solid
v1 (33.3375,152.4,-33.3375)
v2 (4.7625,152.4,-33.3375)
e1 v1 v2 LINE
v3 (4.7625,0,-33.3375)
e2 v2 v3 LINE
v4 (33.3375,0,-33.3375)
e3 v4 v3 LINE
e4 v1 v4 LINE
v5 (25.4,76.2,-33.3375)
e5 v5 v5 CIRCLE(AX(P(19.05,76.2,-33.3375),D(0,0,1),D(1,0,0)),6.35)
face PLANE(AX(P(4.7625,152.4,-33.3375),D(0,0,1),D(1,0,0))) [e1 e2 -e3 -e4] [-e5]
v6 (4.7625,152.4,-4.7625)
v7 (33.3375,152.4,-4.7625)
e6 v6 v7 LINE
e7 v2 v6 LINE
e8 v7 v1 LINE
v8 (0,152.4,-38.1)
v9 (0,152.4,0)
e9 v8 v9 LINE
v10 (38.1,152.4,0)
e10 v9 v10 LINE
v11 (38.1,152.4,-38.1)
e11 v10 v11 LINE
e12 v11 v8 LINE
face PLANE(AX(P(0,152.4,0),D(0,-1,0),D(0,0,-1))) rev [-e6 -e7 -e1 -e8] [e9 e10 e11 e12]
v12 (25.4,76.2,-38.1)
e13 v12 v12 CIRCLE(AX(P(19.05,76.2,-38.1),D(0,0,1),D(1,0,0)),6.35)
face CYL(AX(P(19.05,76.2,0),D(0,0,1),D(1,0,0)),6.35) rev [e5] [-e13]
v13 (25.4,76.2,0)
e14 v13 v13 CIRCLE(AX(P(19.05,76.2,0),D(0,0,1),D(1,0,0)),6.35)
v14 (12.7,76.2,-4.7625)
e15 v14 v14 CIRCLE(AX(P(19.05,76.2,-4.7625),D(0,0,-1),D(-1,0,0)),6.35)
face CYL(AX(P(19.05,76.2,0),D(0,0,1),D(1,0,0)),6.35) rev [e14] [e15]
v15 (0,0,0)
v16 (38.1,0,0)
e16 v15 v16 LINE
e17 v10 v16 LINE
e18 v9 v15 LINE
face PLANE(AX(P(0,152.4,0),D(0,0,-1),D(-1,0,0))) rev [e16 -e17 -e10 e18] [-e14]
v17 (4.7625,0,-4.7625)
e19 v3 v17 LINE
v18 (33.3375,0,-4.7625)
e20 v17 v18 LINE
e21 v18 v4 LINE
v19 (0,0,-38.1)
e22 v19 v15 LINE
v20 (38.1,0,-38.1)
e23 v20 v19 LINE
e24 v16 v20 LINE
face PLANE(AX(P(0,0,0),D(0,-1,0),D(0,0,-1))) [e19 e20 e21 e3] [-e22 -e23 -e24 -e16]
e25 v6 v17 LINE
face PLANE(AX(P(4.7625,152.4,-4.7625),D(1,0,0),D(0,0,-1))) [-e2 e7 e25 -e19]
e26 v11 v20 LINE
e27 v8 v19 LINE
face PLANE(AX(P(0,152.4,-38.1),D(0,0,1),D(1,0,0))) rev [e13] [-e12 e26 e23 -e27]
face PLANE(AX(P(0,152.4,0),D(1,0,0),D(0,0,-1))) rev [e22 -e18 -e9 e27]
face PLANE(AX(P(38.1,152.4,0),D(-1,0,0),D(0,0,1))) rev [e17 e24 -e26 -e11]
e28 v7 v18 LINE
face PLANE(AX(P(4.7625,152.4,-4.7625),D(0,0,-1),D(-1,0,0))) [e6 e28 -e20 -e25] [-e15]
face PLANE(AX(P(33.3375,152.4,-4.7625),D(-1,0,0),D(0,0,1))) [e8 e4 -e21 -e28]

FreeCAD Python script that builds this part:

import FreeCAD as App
import Part
import Sketcher

V = App.Vector
Q = App.Units.Quantity

doc = App.newDocument("Part")
params = doc.addObject("Spreadsheet::Sheet", "Params")
for row, (alias, value) in enumerate([
    ("sketch1_width", "1.5 in"),
    ("sketch1_width2", "1.125 in"),
    ("pad1_length", "6 in"),
    ("sketch2_diameter", "0.5 in"),
    ("hole_diameter", "0.5 in"),
], start=1):
    params.set(f"A{row}", alias)
    params.set(f"B{row}", "=" + value)
    params.setAlias(f"B{row}", alias)

body = doc.addObject("PartDesign::Body", "Body")

sketch1 = body.newObject("Sketcher::SketchObject", "Sketch")
sketch1.AttachmentSupport = (doc.getObject("XZ_Plane"), [""])
sketch1.MapMode = "FlatFace"
sketch1.addGeometry(Part.LineSegment(V(0, -38, 0), V(0, 0, 0)), False)
sketch1.addGeometry(Part.LineSegment(V(0, 0, 0), V(38, 0, 0)), False)
sketch1.addGeometry(Part.LineSegment(V(38, 0, 0), V(38, -38, 0)), False)
sketch1.addGeometry(Part.LineSegment(V(38, -38, 0), V(0, -38, 0)), False)
sketch1.addGeometry(Part.LineSegment(V(33, -5, 0), V(5, -5, 0)), False)
sketch1.addGeometry(Part.LineSegment(V(5, -5, 0), V(5, -33, 0)), False)
sketch1.addGeometry(Part.LineSegment(V(5, -33, 0), V(33, -33, 0)), False)
sketch1.addGeometry(Part.LineSegment(V(33, -33, 0), V(33, -5, 0)), False)
sketch1.addConstraint(Sketcher.Constraint("Coincident", 0, 2, 1, 1))
sketch1.addConstraint(Sketcher.Constraint("Coincident", 1, 2, 2, 1))
sketch1.addConstraint(Sketcher.Constraint("Coincident", 2, 2, 3, 1))
sketch1.addConstraint(Sketcher.Constraint("Coincident", 3, 2, 0, 1))
sketch1.addConstraint(Sketcher.Constraint("Coincident", 4, 2, 5, 1))
sketch1.addConstraint(Sketcher.Constraint("Coincident", 5, 2, 6, 1))
sketch1.addConstraint(Sketcher.Constraint("Coincident", 6, 2, 7, 1))
sketch1.addConstraint(Sketcher.Constraint("Coincident", 7, 2, 4, 1))
sketch1.addConstraint(Sketcher.Constraint("Vertical", 0))
sketch1.addConstraint(Sketcher.Constraint("Horizontal", 1))
sketch1.addConstraint(Sketcher.Constraint("Vertical", 2))
sketch1.addConstraint(Sketcher.Constraint("Horizontal", 3))
sketch1.addConstraint(Sketcher.Constraint("Horizontal", 4))
sketch1.addConstraint(Sketcher.Constraint("Vertical", 5))
sketch1.addConstraint(Sketcher.Constraint("Horizontal", 6))
sketch1.addConstraint(Sketcher.Constraint("Vertical", 7))
sketch1.addConstraint(Sketcher.Constraint("Coincident", 0, 2, -1, 1))
sketch1.addConstraint(Sketcher.Constraint("Equal", 3, 0))
sketch1.addConstraint(Sketcher.Constraint("Equal", 6, 5))
sketch1.addConstraint(Sketcher.Constraint("DistanceX", 1, 1, 1, 2, Q("1.5 in")))
sketch1.addConstraint(Sketcher.Constraint("DistanceX", 4, 2, 4, 1, Q("1.125 in")))
sketch1.addConstraint(Sketcher.Constraint("DistanceX", -1, 1, 4, 2, Q("0.1875 in")))
sketch1.addConstraint(Sketcher.Constraint("DistanceY", 4, 2, -1, 1, Q("0.1875 in")))
sketch1.setExpression("Constraints[19]", "Params.sketch1_width")
sketch1.setExpression("Constraints[20]", "Params.sketch1_width2")
pad1 = body.newObject("PartDesign::Pad", "Pad")
pad1.Profile = sketch1
pad1.setExpression("Length", "Params.pad1_length")
pad1.Reversed = True

sketch2 = body.newObject("Sketcher::SketchObject", "Sketch001")
sketch2.AttachmentSupport = (doc.getObject("XY_Plane"), [""])
sketch2.MapMode = "FlatFace"
sketch2.addGeometry(Part.Circle(V(19, 76, 0), V(0, 0, 1), 6), False)
sketch2.addConstraint(Sketcher.Constraint("Diameter", 0, Q("0.5 in")))
sketch2.addConstraint(Sketcher.Constraint("DistanceY", -1, 1, 0, 3, Q("3 in")))
sketch2.addConstraint(Sketcher.Constraint("DistanceX", -1, 1, 0, 3, Q("0.75 in")))
sketch2.setExpression("Constraints[0]", "Params.sketch2_diameter")
doc.recompute()
hole = body.newObject("PartDesign::Hole", "Hole")
hole.Profile = sketch2
hole.ThreadType = "None"
hole.setExpression("Diameter", "Params.hole_diameter")
hole.DepthType = "ThroughAll"

doc.recompute()
